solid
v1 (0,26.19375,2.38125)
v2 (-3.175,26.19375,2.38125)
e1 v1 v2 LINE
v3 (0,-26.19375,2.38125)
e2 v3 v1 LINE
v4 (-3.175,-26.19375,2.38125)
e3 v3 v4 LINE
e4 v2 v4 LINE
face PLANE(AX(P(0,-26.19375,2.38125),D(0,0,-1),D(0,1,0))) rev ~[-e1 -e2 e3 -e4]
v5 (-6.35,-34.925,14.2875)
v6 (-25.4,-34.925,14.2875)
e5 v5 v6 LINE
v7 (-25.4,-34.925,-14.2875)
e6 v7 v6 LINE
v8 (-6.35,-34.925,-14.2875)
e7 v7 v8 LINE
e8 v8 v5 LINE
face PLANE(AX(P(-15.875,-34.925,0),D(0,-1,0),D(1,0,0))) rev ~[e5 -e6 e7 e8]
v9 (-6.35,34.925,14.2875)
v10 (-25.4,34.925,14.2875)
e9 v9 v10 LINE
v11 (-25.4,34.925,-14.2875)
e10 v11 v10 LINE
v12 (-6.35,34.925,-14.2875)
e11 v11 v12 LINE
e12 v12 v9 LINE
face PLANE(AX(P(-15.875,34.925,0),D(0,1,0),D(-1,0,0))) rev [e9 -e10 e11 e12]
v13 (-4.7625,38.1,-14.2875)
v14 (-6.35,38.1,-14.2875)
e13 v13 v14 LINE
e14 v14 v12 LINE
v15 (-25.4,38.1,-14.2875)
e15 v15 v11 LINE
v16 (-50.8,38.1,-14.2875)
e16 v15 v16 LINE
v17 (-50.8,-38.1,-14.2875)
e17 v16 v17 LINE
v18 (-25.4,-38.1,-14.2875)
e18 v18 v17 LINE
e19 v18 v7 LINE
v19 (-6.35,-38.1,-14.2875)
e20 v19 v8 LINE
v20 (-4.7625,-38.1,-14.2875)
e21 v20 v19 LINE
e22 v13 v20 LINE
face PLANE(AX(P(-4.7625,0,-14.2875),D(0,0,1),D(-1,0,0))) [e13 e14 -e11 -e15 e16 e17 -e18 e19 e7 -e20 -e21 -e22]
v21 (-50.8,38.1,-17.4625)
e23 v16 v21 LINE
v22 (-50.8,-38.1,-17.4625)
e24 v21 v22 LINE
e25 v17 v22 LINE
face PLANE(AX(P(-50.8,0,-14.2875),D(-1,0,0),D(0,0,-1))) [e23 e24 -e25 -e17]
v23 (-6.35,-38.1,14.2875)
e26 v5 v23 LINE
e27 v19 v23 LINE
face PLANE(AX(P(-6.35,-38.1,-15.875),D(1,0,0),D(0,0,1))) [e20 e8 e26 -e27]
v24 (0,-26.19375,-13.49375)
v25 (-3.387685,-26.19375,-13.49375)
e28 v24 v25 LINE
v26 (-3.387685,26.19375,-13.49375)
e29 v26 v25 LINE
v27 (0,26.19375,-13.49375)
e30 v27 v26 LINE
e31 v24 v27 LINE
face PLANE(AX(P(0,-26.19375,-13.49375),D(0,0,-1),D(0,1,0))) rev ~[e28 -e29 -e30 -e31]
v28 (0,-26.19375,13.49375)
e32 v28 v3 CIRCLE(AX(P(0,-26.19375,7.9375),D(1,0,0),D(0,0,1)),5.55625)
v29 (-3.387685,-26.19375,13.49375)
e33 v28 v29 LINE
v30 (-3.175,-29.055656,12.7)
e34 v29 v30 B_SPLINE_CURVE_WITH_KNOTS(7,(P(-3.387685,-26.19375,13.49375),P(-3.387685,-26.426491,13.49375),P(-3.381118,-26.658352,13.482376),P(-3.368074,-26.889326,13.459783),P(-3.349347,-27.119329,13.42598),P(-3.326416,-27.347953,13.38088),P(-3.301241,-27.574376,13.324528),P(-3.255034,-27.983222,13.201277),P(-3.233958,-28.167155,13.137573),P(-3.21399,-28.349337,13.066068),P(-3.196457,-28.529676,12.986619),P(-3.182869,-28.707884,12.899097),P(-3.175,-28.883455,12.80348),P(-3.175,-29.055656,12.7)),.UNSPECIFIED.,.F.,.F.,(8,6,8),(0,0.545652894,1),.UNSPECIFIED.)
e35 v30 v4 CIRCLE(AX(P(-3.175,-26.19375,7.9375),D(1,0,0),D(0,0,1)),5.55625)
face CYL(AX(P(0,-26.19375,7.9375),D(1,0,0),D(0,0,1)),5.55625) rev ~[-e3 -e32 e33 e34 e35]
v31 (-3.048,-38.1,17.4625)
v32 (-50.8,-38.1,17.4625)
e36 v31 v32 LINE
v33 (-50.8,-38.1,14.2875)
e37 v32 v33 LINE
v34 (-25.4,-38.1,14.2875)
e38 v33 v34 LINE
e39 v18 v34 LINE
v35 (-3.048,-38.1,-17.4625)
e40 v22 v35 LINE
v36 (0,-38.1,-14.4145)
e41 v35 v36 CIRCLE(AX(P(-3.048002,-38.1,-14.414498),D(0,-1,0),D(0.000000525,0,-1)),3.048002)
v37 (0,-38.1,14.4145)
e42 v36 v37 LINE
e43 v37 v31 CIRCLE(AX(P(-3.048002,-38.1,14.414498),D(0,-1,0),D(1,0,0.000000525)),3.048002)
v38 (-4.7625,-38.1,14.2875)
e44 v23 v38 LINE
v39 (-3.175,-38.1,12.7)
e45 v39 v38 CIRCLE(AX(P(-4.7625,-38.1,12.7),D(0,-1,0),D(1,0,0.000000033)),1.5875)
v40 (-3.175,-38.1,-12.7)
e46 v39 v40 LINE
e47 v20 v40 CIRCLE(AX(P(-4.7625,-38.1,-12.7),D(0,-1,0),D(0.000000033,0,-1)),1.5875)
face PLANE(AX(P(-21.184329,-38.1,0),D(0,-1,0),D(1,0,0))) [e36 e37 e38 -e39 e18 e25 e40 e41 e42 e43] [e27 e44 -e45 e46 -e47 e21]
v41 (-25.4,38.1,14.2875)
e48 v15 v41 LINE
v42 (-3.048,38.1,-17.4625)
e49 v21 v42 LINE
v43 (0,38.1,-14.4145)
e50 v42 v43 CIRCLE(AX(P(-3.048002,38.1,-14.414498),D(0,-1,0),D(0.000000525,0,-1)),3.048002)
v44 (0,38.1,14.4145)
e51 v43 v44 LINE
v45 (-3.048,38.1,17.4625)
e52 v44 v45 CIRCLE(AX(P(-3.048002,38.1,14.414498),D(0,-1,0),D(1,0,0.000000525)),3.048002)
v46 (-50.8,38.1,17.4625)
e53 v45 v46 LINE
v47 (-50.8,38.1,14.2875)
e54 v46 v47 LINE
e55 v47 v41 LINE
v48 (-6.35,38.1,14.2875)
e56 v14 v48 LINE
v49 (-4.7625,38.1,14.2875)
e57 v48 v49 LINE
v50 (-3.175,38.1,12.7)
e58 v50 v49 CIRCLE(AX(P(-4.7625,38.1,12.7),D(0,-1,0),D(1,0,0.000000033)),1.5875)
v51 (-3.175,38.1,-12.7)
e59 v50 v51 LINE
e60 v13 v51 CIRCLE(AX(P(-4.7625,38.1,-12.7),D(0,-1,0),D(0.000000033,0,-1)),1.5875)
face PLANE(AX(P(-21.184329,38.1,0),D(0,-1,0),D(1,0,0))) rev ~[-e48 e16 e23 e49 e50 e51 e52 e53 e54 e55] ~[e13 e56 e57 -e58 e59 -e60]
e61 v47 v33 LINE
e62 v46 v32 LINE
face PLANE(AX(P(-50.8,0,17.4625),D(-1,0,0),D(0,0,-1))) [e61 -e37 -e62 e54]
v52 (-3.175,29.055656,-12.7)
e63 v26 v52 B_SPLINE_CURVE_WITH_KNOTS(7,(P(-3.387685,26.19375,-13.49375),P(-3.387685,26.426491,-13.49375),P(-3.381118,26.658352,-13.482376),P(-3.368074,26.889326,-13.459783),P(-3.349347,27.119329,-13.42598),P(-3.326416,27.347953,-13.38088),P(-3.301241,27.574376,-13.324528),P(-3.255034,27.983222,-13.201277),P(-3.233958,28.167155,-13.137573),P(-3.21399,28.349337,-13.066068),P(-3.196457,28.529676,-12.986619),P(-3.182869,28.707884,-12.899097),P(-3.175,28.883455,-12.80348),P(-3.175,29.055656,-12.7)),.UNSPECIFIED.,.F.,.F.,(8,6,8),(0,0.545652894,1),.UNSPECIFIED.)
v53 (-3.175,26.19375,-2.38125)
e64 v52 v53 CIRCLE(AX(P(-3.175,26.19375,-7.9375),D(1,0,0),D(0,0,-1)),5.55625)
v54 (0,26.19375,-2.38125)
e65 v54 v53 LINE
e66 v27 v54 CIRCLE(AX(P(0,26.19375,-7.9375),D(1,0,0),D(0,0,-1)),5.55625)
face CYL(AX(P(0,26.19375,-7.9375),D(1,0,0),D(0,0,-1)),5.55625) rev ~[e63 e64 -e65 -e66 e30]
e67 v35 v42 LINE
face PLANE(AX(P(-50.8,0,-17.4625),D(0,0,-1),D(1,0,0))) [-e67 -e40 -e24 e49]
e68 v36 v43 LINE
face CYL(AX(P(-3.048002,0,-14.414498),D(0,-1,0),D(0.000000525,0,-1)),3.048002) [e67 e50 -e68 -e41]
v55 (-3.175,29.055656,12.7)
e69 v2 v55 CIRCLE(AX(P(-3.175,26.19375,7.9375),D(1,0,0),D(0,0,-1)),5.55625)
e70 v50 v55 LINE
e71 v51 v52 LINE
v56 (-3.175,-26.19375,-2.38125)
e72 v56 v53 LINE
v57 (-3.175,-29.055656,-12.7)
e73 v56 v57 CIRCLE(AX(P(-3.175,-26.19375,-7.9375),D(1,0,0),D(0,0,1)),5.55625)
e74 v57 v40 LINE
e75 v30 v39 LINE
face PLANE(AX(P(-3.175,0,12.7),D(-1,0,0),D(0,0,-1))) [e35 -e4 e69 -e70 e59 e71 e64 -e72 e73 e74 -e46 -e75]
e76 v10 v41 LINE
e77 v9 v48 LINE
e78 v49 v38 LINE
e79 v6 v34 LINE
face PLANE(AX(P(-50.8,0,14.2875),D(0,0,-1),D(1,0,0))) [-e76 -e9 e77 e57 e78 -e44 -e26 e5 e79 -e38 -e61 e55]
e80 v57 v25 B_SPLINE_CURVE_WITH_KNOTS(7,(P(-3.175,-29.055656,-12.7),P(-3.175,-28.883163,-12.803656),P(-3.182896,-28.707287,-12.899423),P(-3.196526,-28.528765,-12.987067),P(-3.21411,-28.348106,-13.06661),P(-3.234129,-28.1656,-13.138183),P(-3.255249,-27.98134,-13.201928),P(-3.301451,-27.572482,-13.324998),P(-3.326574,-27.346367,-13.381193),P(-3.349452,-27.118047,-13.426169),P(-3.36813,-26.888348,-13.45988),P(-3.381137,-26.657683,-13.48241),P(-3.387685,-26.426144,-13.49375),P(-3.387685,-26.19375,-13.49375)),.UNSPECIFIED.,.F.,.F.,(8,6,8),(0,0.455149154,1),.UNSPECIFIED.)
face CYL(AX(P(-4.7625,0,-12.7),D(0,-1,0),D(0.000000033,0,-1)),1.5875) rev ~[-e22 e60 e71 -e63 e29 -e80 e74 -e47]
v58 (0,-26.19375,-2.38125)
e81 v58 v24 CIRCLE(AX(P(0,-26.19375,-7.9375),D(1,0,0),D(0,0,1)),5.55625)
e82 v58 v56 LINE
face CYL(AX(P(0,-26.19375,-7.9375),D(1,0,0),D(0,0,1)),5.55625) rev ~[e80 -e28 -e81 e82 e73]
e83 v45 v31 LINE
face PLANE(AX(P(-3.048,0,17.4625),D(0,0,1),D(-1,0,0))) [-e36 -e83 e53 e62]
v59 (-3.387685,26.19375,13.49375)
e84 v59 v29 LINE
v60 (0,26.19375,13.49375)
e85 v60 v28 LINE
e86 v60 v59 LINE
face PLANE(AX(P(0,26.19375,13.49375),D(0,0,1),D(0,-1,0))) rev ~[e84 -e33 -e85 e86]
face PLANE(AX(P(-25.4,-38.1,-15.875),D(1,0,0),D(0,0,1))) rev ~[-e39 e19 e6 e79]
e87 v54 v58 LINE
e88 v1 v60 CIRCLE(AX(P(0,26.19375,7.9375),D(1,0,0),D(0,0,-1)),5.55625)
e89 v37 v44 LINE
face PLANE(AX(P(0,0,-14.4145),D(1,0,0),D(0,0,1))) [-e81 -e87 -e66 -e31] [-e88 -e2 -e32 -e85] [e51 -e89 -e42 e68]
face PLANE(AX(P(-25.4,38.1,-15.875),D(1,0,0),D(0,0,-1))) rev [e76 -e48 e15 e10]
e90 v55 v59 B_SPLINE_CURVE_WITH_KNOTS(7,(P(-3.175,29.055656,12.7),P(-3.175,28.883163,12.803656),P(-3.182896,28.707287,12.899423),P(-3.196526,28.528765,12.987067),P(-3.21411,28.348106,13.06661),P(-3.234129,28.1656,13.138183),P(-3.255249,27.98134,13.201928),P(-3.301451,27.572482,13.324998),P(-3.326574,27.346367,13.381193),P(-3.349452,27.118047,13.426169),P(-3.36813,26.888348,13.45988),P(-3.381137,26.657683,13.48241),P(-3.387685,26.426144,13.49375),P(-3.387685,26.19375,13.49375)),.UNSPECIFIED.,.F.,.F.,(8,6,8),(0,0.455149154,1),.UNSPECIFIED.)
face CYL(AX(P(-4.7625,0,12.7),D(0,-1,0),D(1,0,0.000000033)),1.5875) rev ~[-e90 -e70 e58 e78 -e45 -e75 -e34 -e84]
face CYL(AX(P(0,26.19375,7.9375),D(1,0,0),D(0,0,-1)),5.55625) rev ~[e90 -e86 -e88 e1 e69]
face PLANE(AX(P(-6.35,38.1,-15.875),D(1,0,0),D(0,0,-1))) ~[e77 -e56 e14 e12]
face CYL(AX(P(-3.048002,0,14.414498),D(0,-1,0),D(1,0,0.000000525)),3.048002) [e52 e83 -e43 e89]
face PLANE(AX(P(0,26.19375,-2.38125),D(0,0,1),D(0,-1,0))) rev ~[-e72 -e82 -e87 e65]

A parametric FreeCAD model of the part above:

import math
import FreeCAD as App
import Part
import Sketcher
Q = App.Units.Quantity

doc = App.newDocument("Part")
body = doc.addObject("PartDesign::Body", "Body")

# Sketch on XZ plane
sketch1 = doc.addObject("Sketcher::SketchObject", "Sketch")
body.addObject(sketch1)
sketch1.AttachmentSupport = (doc.XZ_Plane, [""])
sketch1.MapMode = "FlatFace"
sketch1.addGeometry(Part.ArcOfCircle(Part.Circle(App.Vector(-3, 14.4, 0), App.Vector(0, 0, 1), 3), math.radians(0), math.radians(90)), False)
sketch1.addGeometry(Part.LineSegment(App.Vector(-3, 17.5, 0), App.Vector(-50.8, 17.5, 0)), False)
sketch1.addGeometry(Part.LineSegment(App.Vector(-50.8, 17.5, 0), App.Vector(-50.8, 14.3, 0)), False)
sketch1.addGeometry(Part.LineSegment(App.Vector(-50.8, 14.3, 0), App.Vector(-4.8, 14.3, 0)), False)
sketch1.addGeometry(Part.ArcOfCircle(Part.Circle(App.Vector(-4.8, 12.7, 0), App.Vector(0, 0, 1), 1.6), math.radians(0), math.radians(90)), False)
sketch1.addGeometry(Part.LineSegment(App.Vector(-3.2, 12.7, 0), App.Vector(-3.2, -12.7, 0)), False)
sketch1.addGeometry(Part.ArcOfCircle(Part.Circle(App.Vector(-4.8, -12.7, 0), App.Vector(0, 0, 1), 1.6), math.radians(-90), math.radians(0)), False)
sketch1.addGeometry(Part.LineSegment(App.Vector(-4.8, -14.3, 0), App.Vector(-50.8, -14.3, 0)), False)
sketch1.addGeometry(Part.LineSegment(App.Vector(-50.8, -14.3, 0), App.Vector(-50.8, -17.5, 0)), False)
sketch1.addGeometry(Part.LineSegment(App.Vector(-50.8, -17.5, 0), App.Vector(-3, -17.5, 0)), False)
sketch1.addGeometry(Part.ArcOfCircle(Part.Circle(App.Vector(-3, -14.4, 0), App.Vector(0, 0, 1), 3), math.radians(-90), math.radians(0)), False)
sketch1.addGeometry(Part.LineSegment(App.Vector(0, -14.4, 0), App.Vector(0, 14.4, 0)), False)
sketch1.addConstraint(Sketcher.Constraint("Tangent", 0, 2, 1, 1))
sketch1.addConstraint(Sketcher.Constraint("Coincident", 1, 2, 2, 1))
sketch1.addConstraint(Sketcher.Constraint("Coincident", 2, 2, 3, 1))
sketch1.addConstraint(Sketcher.Constraint("Tangent", 3, 2, 4, 2))
sketch1.addConstraint(Sketcher.Constraint("Tangent", 4, 1, 5, 1))
sketch1.addConstraint(Sketcher.Constraint("Tangent", 5, 2, 6, 2))
sketch1.addConstraint(Sketcher.Constraint("Tangent", 6, 1, 7, 1))
sketch1.addConstraint(Sketcher.Constraint("Coincident", 7, 2, 8, 1))
sketch1.addConstraint(Sketcher.Constraint("Coincident", 8, 2, 9, 1))
sketch1.addConstraint(Sketcher.Constraint("Tangent", 9, 2, 10, 1))
sketch1.addConstraint(Sketcher.Constraint("Tangent", 10, 2, 11, 1))
sketch1.addConstraint(Sketcher.Constraint("Tangent", 11, 2, 0, 1))
sketch1.addConstraint(Sketcher.Constraint("Horizontal", 1))
sketch1.addConstraint(Sketcher.Constraint("Vertical", 2))
sketch1.addConstraint(Sketcher.Constraint("Horizontal", 3))
sketch1.addConstraint(Sketcher.Constraint("Vertical", 5))
sketch1.addConstraint(Sketcher.Constraint("Horizontal", 7))
sketch1.addConstraint(Sketcher.Constraint("Vertical", 8))
sketch1.addConstraint(Sketcher.Constraint("Horizontal", 9))
sketch1.addConstraint(Sketcher.Constraint("Vertical", 11))
sketch1.addConstraint(Sketcher.Constraint("Equal", 4, 6))
sketch1.addConstraint(Sketcher.Constraint("Equal", 0, 10))
sketch1.addConstraint(Sketcher.Constraint("Symmetric", 10, 2, 11, 2, -1, 1))
sketch1.addConstraint(Sketcher.Constraint("Symmetric", 2, 2, 7, 2, -1))
sketch1.addConstraint(Sketcher.Constraint("DistanceY", 5, 2, 5, 1, Q("1 in")))
sketch1.addConstraint(Sketcher.Constraint("Radius", 0, Q("0.1200001 in")))
sketch1.addConstraint(Sketcher.Constraint("DistanceX", 1, 2, -1, 1, Q("2 in")))
sketch1.addConstraint(Sketcher.Constraint("Radius", 4, Q("0.0625 in")))
sketch1.addConstraint(Sketcher.Constraint("DistanceX", 3, 1, 3, 2, Q("1.8125 in")))
sketch1.addConstraint(Sketcher.Constraint("DistanceY", 2, 2, 2, 1, Q("0.125 in")))
pad1 = doc.addObject("PartDesign::Pad", "Pad")
body.addObject(pad1)
pad1.Profile = sketch1
pad1.Length = Q("3 in")
pad1.Midplane = True

# Sketch on XZ plane
sketch2 = doc.addObject("Sketcher::SketchObject", "Sketch001")
body.addObject(sketch2)
sketch2.AttachmentSupport = (doc.XZ_Plane, [""])
sketch2.MapMode = "FlatFace"
sketch2.AttachmentOffset = App.Placement(App.Vector(0, 0, 1.5 * 25.4), App.Rotation())
sketch2.addGeometry(Part.LineSegment(App.Vector(-25, 16, 0), App.Vector(-25, -16, 0)), False)
sketch2.addGeometry(Part.LineSegment(App.Vector(-25, -16, 0), App.Vector(-6, -16, 0)), False)
sketch2.addGeometry(Part.LineSegment(App.Vector(-6, -16, 0), App.Vector(-6, 16, 0)), False)
sketch2.addGeometry(Part.LineSegment(App.Vector(-6, 16, 0), App.Vector(-25, 16, 0)), False)
sketch2.addConstraint(Sketcher.Constraint("Coincident", 0, 2, 1, 1))
sketch2.addConstraint(Sketcher.Constraint("Coincident", 1, 2, 2, 1))
sketch2.addConstraint(Sketcher.Constraint("Coincident", 2, 2, 3, 1))
sketch2.addConstraint(Sketcher.Constraint("Coincident", 3, 2, 0, 1))
sketch2.addConstraint(Sketcher.Constraint("Vertical", 0))
sketch2.addConstraint(Sketcher.Constraint("Horizontal", 1))
sketch2.addConstraint(Sketcher.Constraint("Vertical", 2))
sketch2.addConstraint(Sketcher.Constraint("Horizontal", 3))
sketch2.addConstraint(Sketcher.Constraint("DistanceX", 0, 2, -1, 1, Q("1 in")))
sketch2.addConstraint(Sketcher.Constraint("DistanceX", 1, 1, 1, 2, Q("0.75 in")))
sketch2.addConstraint(Sketcher.Constraint("DistanceY", 0, 2, 0, 1, Q("1.25 in")))
sketch2.addConstraint(Sketcher.Constraint("DistanceY", 0, 2, -1, 1, Q("0.625 in")))
pad2 = doc.addObject("PartDesign::Pad", "Pad001")
body.addObject(pad2)
pad2.Profile = sketch2
pad2.Length = Q("0.125 in")
pad2.Reversed = True
doc.recompute()

mirrored = doc.addObject("PartDesign::Mirrored", "Mirrored")
body.addObject(mirrored)
mirrored.Originals = [pad2]
mirrored.MirrorPlane = (doc.XZ_Plane, [""])
body.Tip = mirrored

# Sketch on YZ plane
sketch3 = doc.addObject("Sketcher::SketchObject", "Sketch002")
body.addObject(sketch3)
sketch3.AttachmentSupport = (doc.YZ_Plane, [""])
sketch3.MapMode = "FlatFace"
sketch3.addGeometry(Part.ArcOfCircle(Part.Circle(App.Vector(26, 8, 0), App.Vector(0, 0, 1), 6), math.radians(-90), math.radians(90)), False)
sketch3.addGeometry(Part.LineSegment(App.Vector(26, 13, 0), App.Vector(-26, 13, 0)), False)
sketch3.addGeometry(Part.ArcOfCircle(Part.Circle(App.Vector(-26, 8, 0), App.Vector(0, 0, 1), 6), math.radians(90), math.radians(270)), False)
sketch3.addGeometry(Part.LineSegment(App.Vector(-26, 2, 0), App.Vector(26, 2, 0)), False)
sketch3.addGeometry(Part.ArcOfCircle(Part.Circle(App.Vector(26, -8, 0), App.Vector(0, 0, 1), 6), math.radians(-90), math.radians(90)), False)
sketch3.addGeometry(Part.LineSegment(App.Vector(26, -2, 0), App.Vector(-26, -2, 0)), False)
sketch3.addGeometry(Part.ArcOfCircle(Part.Circle(App.Vector(-26, -8, 0), App.Vector(0, 0, 1), 6), math.radians(90), math.radians(270)), False)
sketch3.addGeometry(Part.LineSegment(App.Vector(-26, -13, 0), App.Vector(26, -13, 0)), False)
sketch3.addConstraint(Sketcher.Constraint("Tangent", 0, 2, 1, 1))
sketch3.addConstraint(Sketcher.Constraint("Tangent", 1, 2, 2, 1))
sketch3.addConstraint(Sketcher.Constraint("Tangent", 2, 2, 3, 1))
sketch3.addConstraint(Sketcher.Constraint("Tangent", 3, 2, 0, 1))
sketch3.addConstraint(Sketcher.Constraint("Tangent", 4, 2, 5, 1))
sketch3.addConstraint(Sketcher.Constraint("Tangent", 5, 2, 6, 1))
sketch3.addConstraint(Sketcher.Constraint("Tangent", 6, 2, 7, 1))
sketch3.addConstraint(Sketcher.Constraint("Tangent", 7, 2, 4, 1))
sketch3.addConstraint(Sketcher.Constraint("Horizontal", 1))
sketch3.addConstraint(Sketcher.Constraint("Horizontal", 3))
sketch3.addConstraint(Sketcher.Constraint("Horizontal", 5))
sketch3.addConstraint(Sketcher.Constraint("Horizontal", 7))
sketch3.addConstraint(Sketcher.Constraint("Equal", 2, 4))
sketch3.addConstraint(Sketcher.Constraint("Symmetric", 2, 3, 4, 3, -1, 1))
sketch3.addConstraint(Sketcher.Constraint("Vertical", 0, 3, 4, 3))
sketch3.addConstraint(Sketcher.Constraint("Vertical", 2, 3, 6, 3))
sketch3.addConstraint(Sketcher.Constraint("Radius", 0, Q("0.21875 in")))
sketch3.addConstraint(Sketcher.Constraint("DistanceX", 1, 2, 1, 1, Q("2.0625 in")))
sketch3.addConstraint(Sketcher.Constraint("DistanceY", -1, 1, 0, 3, Q("0.3125 in")))
pocket1 = doc.addObject("PartDesign::Pocket", "Pocket")
body.addObject(pocket1)
pocket1.Profile = sketch3
pocket1.Type = "ThroughAll"

doc.recompute()
